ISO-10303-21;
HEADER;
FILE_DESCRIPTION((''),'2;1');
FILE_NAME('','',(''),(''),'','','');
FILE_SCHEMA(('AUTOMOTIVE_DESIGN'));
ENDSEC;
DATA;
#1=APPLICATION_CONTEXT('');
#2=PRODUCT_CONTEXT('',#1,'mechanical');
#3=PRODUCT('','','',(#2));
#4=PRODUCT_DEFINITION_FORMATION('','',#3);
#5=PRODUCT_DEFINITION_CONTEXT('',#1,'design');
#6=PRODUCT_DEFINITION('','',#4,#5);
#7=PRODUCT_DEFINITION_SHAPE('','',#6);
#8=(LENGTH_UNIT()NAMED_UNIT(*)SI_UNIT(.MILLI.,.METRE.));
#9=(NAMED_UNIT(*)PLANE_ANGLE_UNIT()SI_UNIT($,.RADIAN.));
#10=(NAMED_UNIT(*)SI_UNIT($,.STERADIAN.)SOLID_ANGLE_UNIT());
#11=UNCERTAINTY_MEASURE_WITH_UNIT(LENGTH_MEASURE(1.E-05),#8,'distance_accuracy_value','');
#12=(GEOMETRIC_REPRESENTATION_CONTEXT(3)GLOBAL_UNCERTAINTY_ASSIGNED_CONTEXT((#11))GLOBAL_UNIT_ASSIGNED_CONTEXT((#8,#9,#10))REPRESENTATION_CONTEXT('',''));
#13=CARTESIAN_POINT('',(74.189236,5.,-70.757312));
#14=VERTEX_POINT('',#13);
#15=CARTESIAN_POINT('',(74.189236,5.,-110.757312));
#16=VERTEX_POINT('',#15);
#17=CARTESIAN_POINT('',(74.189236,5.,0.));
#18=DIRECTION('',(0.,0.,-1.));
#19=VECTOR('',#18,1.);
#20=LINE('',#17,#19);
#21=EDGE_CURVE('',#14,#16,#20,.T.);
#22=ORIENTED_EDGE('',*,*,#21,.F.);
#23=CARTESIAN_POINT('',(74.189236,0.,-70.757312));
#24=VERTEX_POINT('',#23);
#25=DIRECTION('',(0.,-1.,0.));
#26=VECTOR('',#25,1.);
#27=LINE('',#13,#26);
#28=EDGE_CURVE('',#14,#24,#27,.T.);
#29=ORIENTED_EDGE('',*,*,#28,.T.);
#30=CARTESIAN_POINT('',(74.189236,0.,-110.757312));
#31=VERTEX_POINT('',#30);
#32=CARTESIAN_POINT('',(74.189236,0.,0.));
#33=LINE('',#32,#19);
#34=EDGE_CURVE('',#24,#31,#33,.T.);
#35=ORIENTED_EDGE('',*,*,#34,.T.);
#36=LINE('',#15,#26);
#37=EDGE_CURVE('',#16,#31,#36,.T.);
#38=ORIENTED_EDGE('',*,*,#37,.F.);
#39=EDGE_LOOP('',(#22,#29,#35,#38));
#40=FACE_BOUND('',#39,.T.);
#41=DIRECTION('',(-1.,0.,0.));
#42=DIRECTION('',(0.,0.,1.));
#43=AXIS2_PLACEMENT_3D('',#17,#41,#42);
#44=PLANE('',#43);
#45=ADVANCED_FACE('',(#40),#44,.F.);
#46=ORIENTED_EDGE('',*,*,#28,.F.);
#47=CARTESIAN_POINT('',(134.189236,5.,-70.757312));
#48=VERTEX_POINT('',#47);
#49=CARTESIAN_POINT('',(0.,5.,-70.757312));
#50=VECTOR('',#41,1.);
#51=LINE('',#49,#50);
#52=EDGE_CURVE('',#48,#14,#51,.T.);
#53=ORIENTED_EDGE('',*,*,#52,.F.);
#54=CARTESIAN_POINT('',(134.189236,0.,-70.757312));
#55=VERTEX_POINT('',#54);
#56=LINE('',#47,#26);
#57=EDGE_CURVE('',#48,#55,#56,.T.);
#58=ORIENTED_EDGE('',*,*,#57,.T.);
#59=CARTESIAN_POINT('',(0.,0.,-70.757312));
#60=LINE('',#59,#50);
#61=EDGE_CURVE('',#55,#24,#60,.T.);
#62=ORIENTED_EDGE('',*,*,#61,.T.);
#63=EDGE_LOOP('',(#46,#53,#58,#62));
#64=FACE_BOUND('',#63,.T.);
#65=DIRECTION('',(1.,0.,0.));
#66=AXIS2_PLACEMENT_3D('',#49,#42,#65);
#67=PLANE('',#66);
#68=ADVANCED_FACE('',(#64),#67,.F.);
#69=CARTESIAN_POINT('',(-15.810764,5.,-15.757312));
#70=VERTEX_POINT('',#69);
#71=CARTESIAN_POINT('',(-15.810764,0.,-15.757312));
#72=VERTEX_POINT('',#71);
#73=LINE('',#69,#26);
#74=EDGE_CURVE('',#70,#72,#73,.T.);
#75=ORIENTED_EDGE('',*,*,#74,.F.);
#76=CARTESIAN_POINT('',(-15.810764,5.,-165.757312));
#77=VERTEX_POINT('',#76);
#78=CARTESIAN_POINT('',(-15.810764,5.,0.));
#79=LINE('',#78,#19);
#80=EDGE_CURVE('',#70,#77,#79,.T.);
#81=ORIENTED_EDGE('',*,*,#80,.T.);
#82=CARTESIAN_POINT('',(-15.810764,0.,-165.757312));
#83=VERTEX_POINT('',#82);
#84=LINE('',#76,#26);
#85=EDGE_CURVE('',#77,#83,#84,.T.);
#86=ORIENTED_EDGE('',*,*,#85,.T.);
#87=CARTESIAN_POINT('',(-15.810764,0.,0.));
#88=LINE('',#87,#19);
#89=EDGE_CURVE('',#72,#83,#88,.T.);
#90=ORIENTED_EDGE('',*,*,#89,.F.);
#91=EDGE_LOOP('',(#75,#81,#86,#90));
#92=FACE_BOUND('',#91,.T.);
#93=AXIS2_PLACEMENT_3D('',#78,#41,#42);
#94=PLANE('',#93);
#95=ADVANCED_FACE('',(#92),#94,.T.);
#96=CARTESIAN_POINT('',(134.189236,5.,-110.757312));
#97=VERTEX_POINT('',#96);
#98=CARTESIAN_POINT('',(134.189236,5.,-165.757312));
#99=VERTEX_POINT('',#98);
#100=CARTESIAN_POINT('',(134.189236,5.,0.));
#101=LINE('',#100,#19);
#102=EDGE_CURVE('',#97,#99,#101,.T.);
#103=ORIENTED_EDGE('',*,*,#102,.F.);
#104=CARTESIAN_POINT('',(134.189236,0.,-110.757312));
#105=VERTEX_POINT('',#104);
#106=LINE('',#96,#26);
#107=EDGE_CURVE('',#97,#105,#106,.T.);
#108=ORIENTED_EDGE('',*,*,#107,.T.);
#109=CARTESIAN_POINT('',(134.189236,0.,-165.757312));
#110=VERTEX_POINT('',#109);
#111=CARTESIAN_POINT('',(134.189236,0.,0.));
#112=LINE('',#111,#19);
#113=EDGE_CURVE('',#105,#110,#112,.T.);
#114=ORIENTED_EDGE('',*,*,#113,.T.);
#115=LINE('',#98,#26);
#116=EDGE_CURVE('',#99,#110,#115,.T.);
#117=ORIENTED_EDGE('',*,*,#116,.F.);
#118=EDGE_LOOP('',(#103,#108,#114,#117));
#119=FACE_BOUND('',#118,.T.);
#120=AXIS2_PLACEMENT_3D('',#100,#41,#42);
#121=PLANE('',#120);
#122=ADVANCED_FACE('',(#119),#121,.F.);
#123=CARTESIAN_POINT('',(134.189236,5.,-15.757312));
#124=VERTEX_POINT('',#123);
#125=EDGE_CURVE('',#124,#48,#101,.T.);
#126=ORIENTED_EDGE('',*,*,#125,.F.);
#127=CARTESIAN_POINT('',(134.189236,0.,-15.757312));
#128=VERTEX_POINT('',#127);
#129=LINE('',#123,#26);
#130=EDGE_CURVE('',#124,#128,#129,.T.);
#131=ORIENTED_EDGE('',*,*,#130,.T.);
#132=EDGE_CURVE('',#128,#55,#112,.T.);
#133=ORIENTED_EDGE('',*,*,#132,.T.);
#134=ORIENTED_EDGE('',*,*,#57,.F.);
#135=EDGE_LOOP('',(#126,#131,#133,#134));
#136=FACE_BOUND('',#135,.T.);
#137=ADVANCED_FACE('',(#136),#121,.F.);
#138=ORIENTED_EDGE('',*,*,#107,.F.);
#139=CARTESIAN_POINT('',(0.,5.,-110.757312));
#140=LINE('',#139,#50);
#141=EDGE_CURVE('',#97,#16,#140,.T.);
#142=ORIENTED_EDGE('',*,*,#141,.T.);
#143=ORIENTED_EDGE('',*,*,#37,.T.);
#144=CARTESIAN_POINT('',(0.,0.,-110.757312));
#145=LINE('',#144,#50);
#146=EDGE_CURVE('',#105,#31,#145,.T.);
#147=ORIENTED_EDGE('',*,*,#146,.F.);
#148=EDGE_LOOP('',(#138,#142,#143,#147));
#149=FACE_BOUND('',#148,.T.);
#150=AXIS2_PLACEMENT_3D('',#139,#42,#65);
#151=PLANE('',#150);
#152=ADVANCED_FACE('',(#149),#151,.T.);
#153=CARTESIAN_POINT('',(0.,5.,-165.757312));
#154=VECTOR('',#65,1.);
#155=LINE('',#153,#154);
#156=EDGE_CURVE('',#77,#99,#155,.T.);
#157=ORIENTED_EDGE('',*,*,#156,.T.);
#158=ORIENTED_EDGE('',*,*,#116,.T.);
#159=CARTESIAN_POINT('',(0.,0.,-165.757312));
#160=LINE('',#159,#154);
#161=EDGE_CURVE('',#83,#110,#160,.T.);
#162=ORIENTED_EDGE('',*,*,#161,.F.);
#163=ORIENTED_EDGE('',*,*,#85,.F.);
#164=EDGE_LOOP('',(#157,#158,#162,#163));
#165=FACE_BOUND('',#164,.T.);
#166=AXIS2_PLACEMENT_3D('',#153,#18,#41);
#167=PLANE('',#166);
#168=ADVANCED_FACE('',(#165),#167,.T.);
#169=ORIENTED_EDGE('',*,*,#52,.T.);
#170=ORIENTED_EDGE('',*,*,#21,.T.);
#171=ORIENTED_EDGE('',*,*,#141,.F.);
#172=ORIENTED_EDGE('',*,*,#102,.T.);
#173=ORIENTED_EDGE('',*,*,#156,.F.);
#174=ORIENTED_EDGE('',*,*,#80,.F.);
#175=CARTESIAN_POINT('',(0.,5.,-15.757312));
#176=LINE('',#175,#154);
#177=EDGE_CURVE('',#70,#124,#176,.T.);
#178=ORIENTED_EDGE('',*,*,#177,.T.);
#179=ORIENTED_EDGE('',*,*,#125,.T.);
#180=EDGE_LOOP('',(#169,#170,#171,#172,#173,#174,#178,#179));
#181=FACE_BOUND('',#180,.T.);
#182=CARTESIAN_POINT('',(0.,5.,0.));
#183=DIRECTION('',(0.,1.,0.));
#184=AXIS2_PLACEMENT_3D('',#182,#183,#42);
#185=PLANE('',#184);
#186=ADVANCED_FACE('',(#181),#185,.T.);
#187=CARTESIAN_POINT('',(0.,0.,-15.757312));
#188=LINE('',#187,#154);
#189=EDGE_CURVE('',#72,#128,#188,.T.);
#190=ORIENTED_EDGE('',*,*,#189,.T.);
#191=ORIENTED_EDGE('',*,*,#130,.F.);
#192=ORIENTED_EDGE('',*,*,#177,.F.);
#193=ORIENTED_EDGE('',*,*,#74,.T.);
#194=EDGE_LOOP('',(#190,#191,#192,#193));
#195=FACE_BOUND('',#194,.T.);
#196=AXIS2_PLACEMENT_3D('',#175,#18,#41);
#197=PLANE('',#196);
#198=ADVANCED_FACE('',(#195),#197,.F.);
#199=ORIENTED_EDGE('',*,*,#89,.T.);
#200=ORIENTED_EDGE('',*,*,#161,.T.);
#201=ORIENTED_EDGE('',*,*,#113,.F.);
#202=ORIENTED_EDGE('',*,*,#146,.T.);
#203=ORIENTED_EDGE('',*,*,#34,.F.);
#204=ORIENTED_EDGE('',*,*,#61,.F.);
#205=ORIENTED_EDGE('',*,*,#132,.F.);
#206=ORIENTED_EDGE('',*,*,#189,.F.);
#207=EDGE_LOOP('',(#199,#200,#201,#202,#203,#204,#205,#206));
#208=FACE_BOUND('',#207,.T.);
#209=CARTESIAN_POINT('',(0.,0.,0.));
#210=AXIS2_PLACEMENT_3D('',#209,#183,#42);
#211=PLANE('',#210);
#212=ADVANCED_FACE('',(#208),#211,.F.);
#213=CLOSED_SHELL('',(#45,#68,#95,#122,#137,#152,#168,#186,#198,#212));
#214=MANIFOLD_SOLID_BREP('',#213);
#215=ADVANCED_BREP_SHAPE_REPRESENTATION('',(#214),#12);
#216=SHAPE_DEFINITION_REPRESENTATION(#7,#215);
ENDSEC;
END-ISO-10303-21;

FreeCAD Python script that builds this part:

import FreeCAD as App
import Part
import Sketcher

V = App.Vector
Q = App.Units.Quantity

doc = App.newDocument("Part")
body = doc.addObject("PartDesign::Body", "Body")

sketch1 = doc.addObject("Sketcher::SketchObject", "Sketch")
body.addObject(sketch1)
sketch1.AttachmentSupport = (doc.XZ_Plane, [""])
sketch1.MapMode = "FlatFace"
sketch1.addGeometry(Part.LineSegment(V(74, -111, 0), V(134, -111, 0)), False)
sketch1.addGeometry(Part.LineSegment(V(134, -111, 0), V(134, -166, 0)), False)
sketch1.addGeometry(Part.LineSegment(V(134, -166, 0), V(-16, -166, 0)), False)
sketch1.addGeometry(Part.LineSegment(V(-16, -166, 0), V(-16, -16, 0)), False)
sketch1.addGeometry(Part.LineSegment(V(-16, -16, 0), V(134, -16, 0)), False)
sketch1.addGeometry(Part.LineSegment(V(134, -16, 0), V(134, -71, 0)), False)
sketch1.addGeometry(Part.LineSegment(V(134, -71, 0), V(74, -71, 0)), False)
sketch1.addGeometry(Part.LineSegment(V(74, -71, 0), V(74, -111, 0)), False)
sketch1.addConstraint(Sketcher.Constraint("Coincident", 0, 2, 1, 1))
sketch1.addConstraint(Sketcher.Constraint("Coincident", 1, 2, 2, 1))
sketch1.addConstraint(Sketcher.Constraint("Coincident", 2, 2, 3, 1))
sketch1.addConstraint(Sketcher.Constraint("Coincident", 3, 2, 4, 1))
sketch1.addConstraint(Sketcher.Constraint("Coincident", 4, 2, 5, 1))
sketch1.addConstraint(Sketcher.Constraint("Coincident", 5, 2, 6, 1))
sketch1.addConstraint(Sketcher.Constraint("Coincident", 6, 2, 7, 1))
sketch1.addConstraint(Sketcher.Constraint("Coincident", 7, 2, 0, 1))
sketch1.addConstraint(Sketcher.Constraint("Horizontal", 0))
sketch1.addConstraint(Sketcher.Constraint("Vertical", 1))
sketch1.addConstraint(Sketcher.Constraint("Horizontal", 2))
sketch1.addConstraint(Sketcher.Constraint("Vertical", 3))
sketch1.addConstraint(Sketcher.Constraint("Horizontal", 4))
sketch1.addConstraint(Sketcher.Constraint("Vertical", 5))
sketch1.addConstraint(Sketcher.Constraint("Horizontal", 6))
sketch1.addConstraint(Sketcher.Constraint("Vertical", 7))
sketch1.addConstraint(Sketcher.Constraint("Vertical", 1, 2, 4, 2))
sketch1.addConstraint(Sketcher.Constraint("Equal", 4, 3))
sketch1.addConstraint(Sketcher.Constraint("Equal", 1, 5))
sketch1.addConstraint(Sketcher.Constraint("DistanceX", 0, 1, 0, 2, Q("60 mm")))
sketch1.addConstraint(Sketcher.Constraint("DistanceX", 2, 2, 2, 1, Q("150 mm")))
sketch1.addConstraint(Sketcher.Constraint("DistanceY", 1, 2, 1, 1, Q("55 mm")))
sketch1.addConstraint(Sketcher.Constraint("DistanceX", -1, 1, 0, 2, Q("134.189236 mm")))
sketch1.addConstraint(Sketcher.Constraint("DistanceY", 0, 2, -1, 1, Q("110.757312 mm")))
pad1 = doc.addObject("PartDesign::Pad", "Pad")
body.addObject(pad1)
pad1.Profile = sketch1
pad1.Length = 5
pad1.Reversed = True

doc.recompute()
